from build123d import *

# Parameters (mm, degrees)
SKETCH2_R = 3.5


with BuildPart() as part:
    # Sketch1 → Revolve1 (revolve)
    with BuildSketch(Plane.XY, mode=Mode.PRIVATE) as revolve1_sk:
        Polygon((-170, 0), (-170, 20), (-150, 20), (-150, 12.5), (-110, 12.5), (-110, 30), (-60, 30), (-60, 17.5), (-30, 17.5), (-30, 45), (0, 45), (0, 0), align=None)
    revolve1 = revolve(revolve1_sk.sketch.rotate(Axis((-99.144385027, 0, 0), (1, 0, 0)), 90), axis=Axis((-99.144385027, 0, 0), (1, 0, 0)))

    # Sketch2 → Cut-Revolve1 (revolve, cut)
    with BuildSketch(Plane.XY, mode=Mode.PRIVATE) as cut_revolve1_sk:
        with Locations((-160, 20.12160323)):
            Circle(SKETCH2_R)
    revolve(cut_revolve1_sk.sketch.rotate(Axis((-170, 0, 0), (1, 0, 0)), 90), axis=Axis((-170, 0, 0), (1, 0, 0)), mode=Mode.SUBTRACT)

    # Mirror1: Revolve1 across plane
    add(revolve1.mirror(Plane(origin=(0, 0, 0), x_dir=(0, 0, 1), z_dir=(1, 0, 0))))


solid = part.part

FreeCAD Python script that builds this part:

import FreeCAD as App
import Part
import Sketcher

doc = App.newDocument("Part")
body = doc.addObject("PartDesign::Body", "Body")

sketch1 = body.newObject("Sketcher::SketchObject", "Sketch")
sketch1.AttachmentSupport = (doc.getObject("XY_Plane"), [""])
sketch1.MapMode = "FlatFace"
sketch1.addGeometry([
    Part.LineSegment(App.Vector(-170, 20, 0), App.Vector(-170, 0, 0)),
    Part.LineSegment(App.Vector(-170, 0, 0), App.Vector(0, 0, 0)),
    Part.LineSegment(App.Vector(0, 0, 0), App.Vector(0, 45, 0)),
    Part.LineSegment(App.Vector(0, 45, 0), App.Vector(-30, 45, 0)),
    Part.LineSegment(App.Vector(-30, 45, 0), App.Vector(-30, 18, 0)),
    Part.LineSegment(App.Vector(-30, 18, 0), App.Vector(-60, 18, 0)),
    Part.LineSegment(App.Vector(-60, 18, 0), App.Vector(-60, 30, 0)),
    Part.LineSegment(App.Vector(-60, 30, 0), App.Vector(-110, 30, 0)),
    Part.LineSegment(App.Vector(-110, 30, 0), App.Vector(-110, 12, 0)),
    Part.LineSegment(App.Vector(-110, 12, 0), App.Vector(-150, 12, 0)),
    Part.LineSegment(App.Vector(-150, 12, 0), App.Vector(-150, 20, 0)),
    Part.LineSegment(App.Vector(-150, 20, 0), App.Vector(-170, 20, 0)),
], False)
sketch1.addConstraint([
    Sketcher.Constraint("Coincident", 0, 2, 1, 1),
    Sketcher.Constraint("Coincident", 1, 2, 2, 1),
    Sketcher.Constraint("Coincident", 2, 2, 3, 1),
    Sketcher.Constraint("Coincident", 3, 2, 4, 1),
    Sketcher.Constraint("Coincident", 4, 2, 5, 1),
    Sketcher.Constraint("Coincident", 5, 2, 6, 1),
    Sketcher.Constraint("Coincident", 6, 2, 7, 1),
    Sketcher.Constraint("Coincident", 7, 2, 8, 1),
    Sketcher.Constraint("Coincident", 8, 2, 9, 1),
    Sketcher.Constraint("Coincident", 9, 2, 10, 1),
    Sketcher.Constraint("Coincident", 10, 2, 11, 1),
    Sketcher.Constraint("Coincident", 11, 2, 0, 1),
    Sketcher.Constraint("Vertical", 0),
    Sketcher.Constraint("Horizontal", 1),
    Sketcher.Constraint("Vertical", 2),
    Sketcher.Constraint("Horizontal", 3),
    Sketcher.Constraint("Vertical", 4),
    Sketcher.Constraint("Horizontal", 5),
    Sketcher.Constraint("Vertical", 6),
    Sketcher.Constraint("Horizontal", 7),
    Sketcher.Constraint("Vertical", 8),
    Sketcher.Constraint("Horizontal", 9),
    Sketcher.Constraint("Vertical", 10),
    Sketcher.Constraint("Horizontal", 11),
    Sketcher.Constraint("Coincident", 1, 2, -1, 1),
    Sketcher.Constraint("Equal", 3, 5),
    Sketcher.Constraint("Equal", 11, 0),
    Sketcher.Constraint("DistanceX", 1, 1, 1, 2, 170.0),
    Sketcher.Constraint("DistanceX", 3, 2, 3, 1, 30.0),
    Sketcher.Constraint("DistanceX", 7, 2, 7, 1, 50.0),
    Sketcher.Constraint("DistanceX", 9, 2, 9, 1, 40.0),
    Sketcher.Constraint("DistanceY", 2, 1, 2, 2, 45.0),
    Sketcher.Constraint("DistanceY", 4, 2, 4, 1, 27.5),
    Sketcher.Constraint("DistanceY", 6, 1, 6, 2, 12.5),
    Sketcher.Constraint("DistanceY", 8, 2, 8, 1, 17.5),
])
revolution = body.newObject("PartDesign::Revolution", "Revolution")
revolution.Profile = sketch1
revolution.ReferenceAxis = (sketch1, ["H_Axis"])
revolution.Angle = 360

sketch2 = body.newObject("Sketcher::SketchObject", "Sketch001")
sketch2.AttachmentSupport = (doc.getObject("XY_Plane"), [""])
sketch2.MapMode = "FlatFace"
sketch2.addGeometry(Part.Circle(App.Vector(-160, 20.1, 0), App.Vector(0, 0, 1), 3.5), False)
sketch2.addConstraint([
    Sketcher.Constraint("Diameter", 0, 7.0),
    Sketcher.Constraint("DistanceX", 0, 3, -1, 1, 160.0),
    Sketcher.Constraint("DistanceY", -1, 1, 0, 3, 20.121603),
])
groove = body.newObject("PartDesign::Groove", "Groove")
groove.Profile = sketch2
groove.ReferenceAxis = (sketch2, ["H_Axis"])
groove.Angle = 360
doc.recompute()

mirrored = body.newObject("PartDesign::Mirrored", "Mirrored")
mirrored.Originals = [revolution]
mirrored.MirrorPlane = (doc.getObject("YZ_Plane"), [""])
body.Tip = mirrored

doc.recompute()
